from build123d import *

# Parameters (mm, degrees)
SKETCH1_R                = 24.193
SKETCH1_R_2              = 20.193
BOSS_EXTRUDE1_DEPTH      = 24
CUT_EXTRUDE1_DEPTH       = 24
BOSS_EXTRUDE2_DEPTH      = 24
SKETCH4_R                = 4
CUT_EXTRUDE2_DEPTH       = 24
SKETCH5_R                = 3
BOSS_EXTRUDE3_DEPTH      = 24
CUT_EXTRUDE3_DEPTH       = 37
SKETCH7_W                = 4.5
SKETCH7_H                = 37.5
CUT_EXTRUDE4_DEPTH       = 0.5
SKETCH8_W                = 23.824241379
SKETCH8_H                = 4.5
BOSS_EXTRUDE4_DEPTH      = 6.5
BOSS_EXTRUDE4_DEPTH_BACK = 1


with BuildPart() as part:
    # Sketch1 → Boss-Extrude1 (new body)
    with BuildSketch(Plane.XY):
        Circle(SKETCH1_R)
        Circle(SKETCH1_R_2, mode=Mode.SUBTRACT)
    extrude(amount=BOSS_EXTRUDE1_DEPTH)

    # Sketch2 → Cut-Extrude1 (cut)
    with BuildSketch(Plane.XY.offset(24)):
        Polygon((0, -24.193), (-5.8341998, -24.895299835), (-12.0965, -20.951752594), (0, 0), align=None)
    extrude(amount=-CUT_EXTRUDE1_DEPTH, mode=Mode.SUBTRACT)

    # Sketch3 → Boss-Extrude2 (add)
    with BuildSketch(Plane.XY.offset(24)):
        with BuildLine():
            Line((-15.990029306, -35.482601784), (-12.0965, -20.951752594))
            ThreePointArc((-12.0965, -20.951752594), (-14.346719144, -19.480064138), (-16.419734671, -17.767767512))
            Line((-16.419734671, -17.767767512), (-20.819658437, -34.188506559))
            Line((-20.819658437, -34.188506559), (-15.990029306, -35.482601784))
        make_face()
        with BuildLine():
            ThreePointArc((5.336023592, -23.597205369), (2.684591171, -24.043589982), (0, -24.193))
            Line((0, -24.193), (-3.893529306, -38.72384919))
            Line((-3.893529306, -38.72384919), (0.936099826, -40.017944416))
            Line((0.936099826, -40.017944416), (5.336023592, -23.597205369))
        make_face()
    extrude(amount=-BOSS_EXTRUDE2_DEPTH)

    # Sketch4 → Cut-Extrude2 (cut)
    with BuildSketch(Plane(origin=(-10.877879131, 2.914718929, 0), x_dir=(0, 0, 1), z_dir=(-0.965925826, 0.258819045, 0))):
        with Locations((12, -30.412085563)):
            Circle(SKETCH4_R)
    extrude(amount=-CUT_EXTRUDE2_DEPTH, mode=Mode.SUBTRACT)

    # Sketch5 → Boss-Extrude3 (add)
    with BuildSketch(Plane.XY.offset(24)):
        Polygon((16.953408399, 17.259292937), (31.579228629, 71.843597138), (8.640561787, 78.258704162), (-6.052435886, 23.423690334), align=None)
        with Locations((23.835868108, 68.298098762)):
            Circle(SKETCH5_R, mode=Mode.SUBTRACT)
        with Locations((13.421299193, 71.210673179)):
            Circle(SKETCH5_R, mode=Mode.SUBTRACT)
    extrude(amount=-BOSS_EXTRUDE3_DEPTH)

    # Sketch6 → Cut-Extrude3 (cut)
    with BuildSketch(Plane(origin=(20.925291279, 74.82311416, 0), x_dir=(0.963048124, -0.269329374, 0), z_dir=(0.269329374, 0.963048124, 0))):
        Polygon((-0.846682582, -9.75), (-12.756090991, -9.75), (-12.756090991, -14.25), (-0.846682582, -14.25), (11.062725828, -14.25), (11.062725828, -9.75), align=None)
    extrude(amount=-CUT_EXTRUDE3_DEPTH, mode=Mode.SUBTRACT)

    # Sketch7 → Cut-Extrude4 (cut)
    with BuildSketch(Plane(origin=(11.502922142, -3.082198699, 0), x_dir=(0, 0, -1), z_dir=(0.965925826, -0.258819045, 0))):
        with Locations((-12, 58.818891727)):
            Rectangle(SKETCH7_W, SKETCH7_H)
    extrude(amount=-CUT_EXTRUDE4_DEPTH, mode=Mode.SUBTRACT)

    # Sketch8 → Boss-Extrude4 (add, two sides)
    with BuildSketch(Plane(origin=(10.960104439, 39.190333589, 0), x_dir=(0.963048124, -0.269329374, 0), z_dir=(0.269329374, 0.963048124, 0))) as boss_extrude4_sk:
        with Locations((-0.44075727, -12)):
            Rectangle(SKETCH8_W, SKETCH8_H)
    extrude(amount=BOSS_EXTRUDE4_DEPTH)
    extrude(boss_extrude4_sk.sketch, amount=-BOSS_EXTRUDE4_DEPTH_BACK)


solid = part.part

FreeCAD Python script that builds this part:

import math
import FreeCAD as App
import Part
import Sketcher
from FreeCAD import Vector
Q = App.Units.Quantity

doc = App.newDocument("Part")
body = doc.addObject("PartDesign::Body", "Body")

sketch1 = body.newObject("Sketcher::SketchObject", "Sketch")
sketch1.AttachmentSupport = (doc.getObject("XY_Plane"), [""])
sketch1.MapMode = "FlatFace"
sketch1.addGeometry(Part.Circle(Vector(0, 0, 0), Vector(0, 0, 1), 24), False)
sketch1.addGeometry(Part.Circle(Vector(0, 0, 0), Vector(0, 0, 1), 20), False)
sketch1.addConstraint(Sketcher.Constraint("Coincident", 0, 3, -1, 1))
sketch1.addConstraint(Sketcher.Constraint("Coincident", 1, 3, -1, 1))
sketch1.addConstraint(Sketcher.Constraint("Diameter", 0, 48.386))
sketch1.addConstraint(Sketcher.Constraint("Diameter", 1, 40.386))
pad1 = body.newObject("PartDesign::Pad", "Pad")
pad1.Profile = sketch1
pad1.Length = 24

sketch2 = body.newObject("Sketcher::SketchObject", "Sketch001")
sketch2.AttachmentSupport = (doc.getObject("XY_Plane"), [""])
sketch2.MapMode = "FlatFace"
sketch2.AttachmentOffset = App.Placement(Vector(0, 0, 24), App.Rotation())
sketch2.addGeometry(Part.LineSegment(Vector(-6, -25, 0), Vector(0, -24, 0)), False)
sketch2.addGeometry(Part.LineSegment(Vector(0, -24, 0), Vector(0, 0, 0)), False)
sketch2.addGeometry(Part.LineSegment(Vector(0, 0, 0), Vector(-12, -21, 0)), False)
sketch2.addGeometry(Part.LineSegment(Vector(-12, -21, 0), Vector(-6, -25, 0)), False)
sketch2.addConstraint(Sketcher.Constraint("Coincident", 0, 2, 1, 1))
sketch2.addConstraint(Sketcher.Constraint("Coincident", 1, 2, 2, 1))
sketch2.addConstraint(Sketcher.Constraint("Coincident", 2, 2, 3, 1))
sketch2.addConstraint(Sketcher.Constraint("Coincident", 3, 2, 0, 1))
sketch2.addConstraint(Sketcher.Constraint("Vertical", 1))
sketch2.addConstraint(Sketcher.Constraint("Coincident", 1, 2, -1, 1))
sketch2.addConstraint(Sketcher.Constraint("Angle", 2, Q("-120 deg")))
sketch2.addConstraint(Sketcher.Constraint("DistanceY", 1, 1, 1, 2, 24.193))
sketch2.addConstraint(Sketcher.Constraint("Distance", 2, 24.193))
sketch2.addConstraint(Sketcher.Constraint("DistanceX", 3, 2, -1, 1, 5.8342))
sketch2.addConstraint(Sketcher.Constraint("DistanceY", 3, 2, -1, 1, 24.8953))
pocket1 = body.newObject("PartDesign::Pocket", "Pocket")
pocket1.Profile = sketch2
pocket1.Length = 24

sketch3 = body.newObject("Sketcher::SketchObject", "Sketch002")
sketch3.AttachmentSupport = (doc.getObject("XY_Plane"), [""])
sketch3.MapMode = "FlatFace"
sketch3.AttachmentOffset = App.Placement(Vector(0, 0, 24), App.Rotation())
sketch3.addGeometry(Part.LineSegment(Vector(-16, -35.5, 0), Vector(-12.1, -21, 0)), False)
sketch3.addGeometry(Part.ArcOfCircle(Part.Circle(Vector(0, 0, 0), Vector(0, 0, 1), 24.2), math.radians(-132.74), math.radians(-120)), False)
sketch3.addGeometry(Part.LineSegment(Vector(-16.4, -17.8, 0), Vector(-20.8, -34.2, 0)), False)
sketch3.addGeometry(Part.LineSegment(Vector(-20.8, -34.2, 0), Vector(-16, -35.5, 0)), False)
sketch3.addGeometry(Part.ArcOfCircle(Part.Circle(Vector(0, 0, 0), Vector(0, 0, 1), 24.2), math.radians(-90), math.radians(-77.26)), False)
sketch3.addGeometry(Part.LineSegment(Vector(0, -24.2, 0), Vector(-3.9, -38.7, 0)), False)
sketch3.addGeometry(Part.LineSegment(Vector(-3.9, -38.7, 0), Vector(0.9, -40, 0)), False)
sketch3.addGeometry(Part.LineSegment(Vector(0.9, -40, 0), Vector(5.3, -23.6, 0)), False)
sketch3.addConstraint(Sketcher.Constraint("Coincident", 0, 2, 1, 2))
sketch3.addConstraint(Sketcher.Constraint("Coincident", 1, 1, 2, 1))
sketch3.addConstraint(Sketcher.Constraint("Coincident", 2, 2, 3, 1))
sketch3.addConstraint(Sketcher.Constraint("Coincident", 3, 2, 0, 1))
sketch3.addConstraint(Sketcher.Constraint("Coincident", 4, 1, 5, 1))
sketch3.addConstraint(Sketcher.Constraint("Coincident", 5, 2, 6, 1))
sketch3.addConstraint(Sketcher.Constraint("Coincident", 6, 2, 7, 1))
sketch3.addConstraint(Sketcher.Constraint("Coincident", 7, 2, 4, 2))
sketch3.addConstraint(Sketcher.Constraint("Coincident", 1, 3, -1, 1))
sketch3.addConstraint(Sketcher.Constraint("Coincident", 4, 3, -1, 1))
sketch3.addConstraint(Sketcher.Constraint("Equal", 1, 4))
sketch3.addConstraint(Sketcher.Constraint("PointOnObject", 4, 1, -2))
sketch3.addConstraint(Sketcher.Constraint("Parallel", 0, 2))
sketch3.addConstraint(Sketcher.Constraint("Perpendicular", 2, 3))
sketch3.addConstraint(Sketcher.Constraint("Perpendicular", 3, 5))
sketch3.addConstraint(Sketcher.Constraint("Perpendicular", 5, 6))
sketch3.addConstraint(Sketcher.Constraint("Perpendicular", 6, 7))
sketch3.addConstraint(Sketcher.Constraint("Equal", 0, 5))
sketch3.addConstraint(Sketcher.Constraint("Equal", 3, 6))
sketch3.addConstraint(Sketcher.Constraint("Equal", 2, 7))
sketch3.addConstraint(Sketcher.Constraint("Angle", 0, Q("75 deg")))
sketch3.addConstraint(Sketcher.Constraint("Distance", 2, 17.0))
sketch3.addConstraint(Sketcher.Constraint("Distance", 3, 5.0))
sketch3.addConstraint(Sketcher.Constraint("Radius", 1, 24.193))
pad2 = body.newObject("PartDesign::Pad", "Pad001")
pad2.Profile = sketch3
pad2.Length = 24
pad2.Reversed = True

sketch4 = body.newObject("Sketcher::SketchObject", "Sketch003")
sketch4.Placement = App.Placement(Vector(-10.877879, 2.914719, 0), App.Rotation(Vector(0, 0, 1), Vector(0.258819045, 0.965925826, 0), Vector(-0.965925826, 0.258819045, 0), "ZXY"))
sketch4.addGeometry(Part.Circle(Vector(12, -30.4, 0), Vector(0, 0, 1), 4), False)
sketch4.addConstraint(Sketcher.Constraint("Diameter", 0, 8.0))
sketch4.addConstraint(Sketcher.Constraint("DistanceX", -1, 1, 0, 3, 12.0))
sketch4.addConstraint(Sketcher.Constraint("DistanceY", 0, 3, -1, 1, 30.412086))
pocket2 = body.newObject("PartDesign::Pocket", "Pocket001")
pocket2.Profile = sketch4
pocket2.Length = 24

sketch5 = body.newObject("Sketcher::SketchObject", "Sketch004")
sketch5.AttachmentSupport = (doc.getObject("XY_Plane"), [""])
sketch5.MapMode = "FlatFace"
sketch5.AttachmentOffset = App.Placement(Vector(0, 0, 24), App.Rotation())
sketch5.addGeometry(Part.LineSegment(Vector(17, 17.3, 0), Vector(31.6, 71.8, 0)), False)
sketch5.addGeometry(Part.LineSegment(Vector(31.6, 71.8, 0), Vector(8.6, 78.3, 0)), False)
sketch5.addGeometry(Part.LineSegment(Vector(8.6, 78.3, 0), Vector(-6.1, 23.4, 0)), False)
sketch5.addGeometry(Part.LineSegment(Vector(-6.1, 23.4, 0), Vector(17, 17.3, 0)), False)
sketch5.addGeometry(Part.Circle(Vector(23.8, 68.3, 0), Vector(0, 0, 1), 3), False)
sketch5.addGeometry(Part.Circle(Vector(13.4, 71.2, 0), Vector(0, 0, 1), 3), False)
sketch5.addConstraint(Sketcher.Constraint("Coincident", 0, 2, 1, 1))
sketch5.addConstraint(Sketcher.Constraint("Coincident", 1, 2, 2, 1))
sketch5.addConstraint(Sketcher.Constraint("Coincident", 2, 2, 3, 1))
sketch5.addConstraint(Sketcher.Constraint("Coincident", 3, 2, 0, 1))
sketch5.addConstraint(Sketcher.Constraint("Equal", 4, 5))
sketch5.addConstraint(Sketcher.Constraint("Parallel", 0, 2))
sketch5.addConstraint(Sketcher.Constraint("Perpendicular", 2, 3))
sketch5.addConstraint(Sketcher.Constraint("Diameter", 4, 6.0))
sketch5.addConstraint(Sketcher.Constraint("Angle", 0, Q("75 deg")))
sketch5.addConstraint(Sketcher.Constraint("DistanceY", -1, 1, 4, 3, 68.298099))
sketch5.addConstraint(Sketcher.Constraint("DistanceX", -1, 1, 5, 3, 13.421299))
sketch5.addConstraint(Sketcher.Constraint("DistanceY", 4, 3, 0, 2, 3.545498))
sketch5.addConstraint(Sketcher.Constraint("Distance", 0, 56.50983))
sketch5.addConstraint(Sketcher.Constraint("DistanceX", -1, 1, 4, 3, 23.835868))
sketch5.addConstraint(Sketcher.Constraint("DistanceX", -1, 1, 0, 2, 31.579229))
sketch5.addConstraint(Sketcher.Constraint("DistanceX", -1, 1, 1, 2, 8.640562))
sketch5.addConstraint(Sketcher.Constraint("DistanceY", -1, 1, 2, 2, 23.42369))
sketch5.addConstraint(Sketcher.Constraint("DistanceY", 5, 3, 1, 2, 7.048031))
pad3 = body.newObject("PartDesign::Pad", "Pad002")
pad3.Profile = sketch5
pad3.Length = 24
pad3.Reversed = True

sketch6 = body.newObject("Sketcher::SketchObject", "Sketch005")
sketch6.Placement = App.Placement(Vector(20.925291, 74.823114, 0), App.Rotation(Vector(0.963048124, -0.269329374, 0), Vector(0, 0, -1.000000001), Vector(0.269329374, 0.963048124, 0), "ZXY"))
sketch6.addGeometry(Part.LineSegment(Vector(-12.8, -9.8, 0), Vector(-12.8, -14.3, 0)), False)
sketch6.addGeometry(Part.LineSegment(Vector(-12.8, -14.3, 0), Vector(11.1, -14.3, 0)), False)
sketch6.addGeometry(Part.LineSegment(Vector(11.1, -14.3, 0), Vector(11.1, -9.8, 0)), False)
sketch6.addGeometry(Part.LineSegment(Vector(11.1, -9.8, 0), Vector(-12.8, -9.8, 0)), False)
sketch6.addConstraint(Sketcher.Constraint("Coincident", 0, 2, 1, 1))
sketch6.addConstraint(Sketcher.Constraint("Coincident", 1, 2, 2, 1))
sketch6.addConstraint(Sketcher.Constraint("Coincident", 2, 2, 3, 1))
sketch6.addConstraint(Sketcher.Constraint("Coincident", 3, 2, 0, 1))
sketch6.addConstraint(Sketcher.Constraint("Vertical", 0))
sketch6.addConstraint(Sketcher.Constraint("Horizontal", 1))
sketch6.addConstraint(Sketcher.Constraint("Vertical", 2))
sketch6.addConstraint(Sketcher.Constraint("Horizontal", 3))
sketch6.addConstraint(Sketcher.Constraint("DistanceY", 0, 2, 0, 1, 4.5))
sketch6.addConstraint(Sketcher.Constraint("DistanceY", 0, 2, -1, 1, 14.25))
sketch6.addConstraint(Sketcher.Constraint("DistanceX", 1, 1, 1, 2, 23.818817))
sketch6.addConstraint(Sketcher.Constraint("DistanceX", 0, 2, -1, 1, 12.756091))
pocket3 = body.newObject("PartDesign::Pocket", "Pocket002")
pocket3.Profile = sketch6
pocket3.Length = 37

sketch7 = body.newObject("Sketcher::SketchObject", "Sketch006")
sketch7.Placement = App.Placement(Vector(11.502922, -3.082199, 0), App.Rotation(Vector(0, 0, -1), Vector(0.258819045, 0.965925826, 0), Vector(0.965925826, -0.258819045, 0), "ZXY"))
sketch7.addGeometry(Part.LineSegment(Vector(-14.2, 77.6, 0), Vector(-14.2, 40.1, 0)), False)
sketch7.addGeometry(Part.LineSegment(Vector(-14.2, 40.1, 0), Vector(-9.8, 40.1, 0)), False)
sketch7.addGeometry(Part.LineSegment(Vector(-9.8, 40.1, 0), Vector(-9.8, 77.6, 0)), False)
sketch7.addGeometry(Part.LineSegment(Vector(-9.8, 77.6, 0), Vector(-14.2, 77.6, 0)), False)
sketch7.addConstraint(Sketcher.Constraint("Coincident", 0, 2, 1, 1))
sketch7.addConstraint(Sketcher.Constraint("Coincident", 1, 2, 2, 1))
sketch7.addConstraint(Sketcher.Constraint("Coincident", 2, 2, 3, 1))
sketch7.addConstraint(Sketcher.Constraint("Coincident", 3, 2, 0, 1))
sketch7.addConstraint(Sketcher.Constraint("Vertical", 0))
sketch7.addConstraint(Sketcher.Constraint("Horizontal", 1))
sketch7.addConstraint(Sketcher.Constraint("Vertical", 2))
sketch7.addConstraint(Sketcher.Constraint("Horizontal", 3))
sketch7.addConstraint(Sketcher.Constraint("DistanceX", 1, 1, 1, 2, 4.5))
sketch7.addConstraint(Sketcher.Constraint("DistanceY", 0, 2, 0, 1, 37.5))
sketch7.addConstraint(Sketcher.Constraint("DistanceX", 0, 2, -1, 1, 14.25))
sketch7.addConstraint(Sketcher.Constraint("DistanceY", -1, 1, 0, 2, 40.068892))
pocket4 = body.newObject("PartDesign::Pocket", "Pocket003")
pocket4.Profile = sketch7
pocket4.Length = 0.5

sketch8 = body.newObject("Sketcher::SketchObject", "Sketch007")
sketch8.Placement = App.Placement(Vector(10.960104, 39.190334, 0), App.Rotation(Vector(0.963048124, -0.269329374, 0), Vector(0, 0, -1.000000001), Vector(0.269329374, 0.963048124, 0), "ZXY"))
sketch8.addGeometry(Part.LineSegment(Vector(-12.4, -9.8, 0), Vector(-12.4, -14.3, 0)), False)
sketch8.addGeometry(Part.LineSegment(Vector(-12.4, -14.3, 0), Vector(11.5, -14.3, 0)), False)
sketch8.addGeometry(Part.LineSegment(Vector(11.5, -14.3, 0), Vector(11.5, -9.8, 0)), False)
sketch8.addGeometry(Part.LineSegment(Vector(11.5, -9.8, 0), Vector(-12.4, -9.8, 0)), False)
sketch8.addConstraint(Sketcher.Constraint("Coincident", 0, 2, 1, 1))
sketch8.addConstraint(Sketcher.Constraint("Coincident", 1, 2, 2, 1))
sketch8.addConstraint(Sketcher.Constraint("Coincident", 2, 2, 3, 1))
sketch8.addConstraint(Sketcher.Constraint("Coincident", 3, 2, 0, 1))
sketch8.addConstraint(Sketcher.Constraint("Vertical", 0))
sketch8.addConstraint(Sketcher.Constraint("Horizontal", 1))
sketch8.addConstraint(Sketcher.Constraint("Vertical", 2))
sketch8.addConstraint(Sketcher.Constraint("Horizontal", 3))
sketch8.addConstraint(Sketcher.Constraint("DistanceY", 0, 2, 0, 1, 4.5))
sketch8.addConstraint(Sketcher.Constraint("DistanceY", 0, 2, -1, 1, 14.25))
sketch8.addConstraint(Sketcher.Constraint("DistanceX", 1, 1, 1, 2, 23.824241))
sketch8.addConstraint(Sketcher.Constraint("DistanceX", 0, 2, -1, 1, 12.352878))
pad4 = body.newObject("PartDesign::Pad", "Pad003")
pad4.Profile = sketch8
pad4.Type = "TwoLengths"
pad4.Length = 6.5
pad4.Length2 = 1

doc.recompute()
